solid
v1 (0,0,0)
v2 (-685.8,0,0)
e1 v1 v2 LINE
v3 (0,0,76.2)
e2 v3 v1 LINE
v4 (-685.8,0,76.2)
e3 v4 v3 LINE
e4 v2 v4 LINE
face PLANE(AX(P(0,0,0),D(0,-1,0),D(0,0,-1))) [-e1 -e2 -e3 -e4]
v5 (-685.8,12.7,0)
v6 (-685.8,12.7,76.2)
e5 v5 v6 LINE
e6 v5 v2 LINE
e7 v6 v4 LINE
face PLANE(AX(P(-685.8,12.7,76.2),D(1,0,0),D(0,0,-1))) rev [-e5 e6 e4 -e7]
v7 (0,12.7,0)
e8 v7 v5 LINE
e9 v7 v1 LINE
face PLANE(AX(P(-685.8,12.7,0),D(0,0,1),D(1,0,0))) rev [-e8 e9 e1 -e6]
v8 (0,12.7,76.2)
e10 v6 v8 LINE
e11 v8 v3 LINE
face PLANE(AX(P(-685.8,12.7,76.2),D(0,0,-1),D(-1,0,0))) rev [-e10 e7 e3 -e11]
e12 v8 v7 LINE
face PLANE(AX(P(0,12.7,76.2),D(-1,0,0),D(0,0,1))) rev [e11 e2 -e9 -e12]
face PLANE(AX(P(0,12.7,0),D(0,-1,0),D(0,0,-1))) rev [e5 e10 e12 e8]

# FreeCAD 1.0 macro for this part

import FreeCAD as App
import Part
import Sketcher
Q = App.Units.Quantity

doc = App.newDocument("Part")
body = doc.addObject("PartDesign::Body", "Body")

# Sketch on XZ plane
sketch1 = doc.addObject("Sketcher::SketchObject", "Sketch")
body.addObject(sketch1)
sketch1.AttachmentSupport = (doc.XZ_Plane, [""])
sketch1.MapMode = "FlatFace"
sketch1.addGeometry(Part.LineSegment(App.Vector(-685.8, 0, 0), App.Vector(-685.8, 76.2, 0)), False)
sketch1.addGeometry(Part.LineSegment(App.Vector(-685.8, 76.2, 0), App.Vector(0, 76.2, 0)), False)
sketch1.addGeometry(Part.LineSegment(App.Vector(0, 76.2, 0), App.Vector(0, 0, 0)), False)
sketch1.addGeometry(Part.LineSegment(App.Vector(0, 0, 0), App.Vector(-685.8, 0, 0)), False)
sketch1.addConstraint(Sketcher.Constraint("Coincident", 0, 2, 1, 1))
sketch1.addConstraint(Sketcher.Constraint("Coincident", 1, 2, 2, 1))
sketch1.addConstraint(Sketcher.Constraint("Coincident", 2, 2, 3, 1))
sketch1.addConstraint(Sketcher.Constraint("Coincident", 3, 2, 0, 1))
sketch1.addConstraint(Sketcher.Constraint("Vertical", 0))
sketch1.addConstraint(Sketcher.Constraint("Horizontal", 1))
sketch1.addConstraint(Sketcher.Constraint("Vertical", 2))
sketch1.addConstraint(Sketcher.Constraint("Horizontal", 3))
sketch1.addConstraint(Sketcher.Constraint("Coincident", 2, 2, -1, 1))
sketch1.addConstraint(Sketcher.Constraint("DistanceX", 1, 1, 1, 2, Q("27 in")))
sketch1.addConstraint(Sketcher.Constraint("DistanceY", 0, 1, 0, 2, Q("3 in")))
pad1 = doc.addObject("PartDesign::Pad", "Pad")
body.addObject(pad1)
pad1.Profile = sketch1
pad1.Length = Q("0.5 in")
pad1.Reversed = True

doc.recompute()
